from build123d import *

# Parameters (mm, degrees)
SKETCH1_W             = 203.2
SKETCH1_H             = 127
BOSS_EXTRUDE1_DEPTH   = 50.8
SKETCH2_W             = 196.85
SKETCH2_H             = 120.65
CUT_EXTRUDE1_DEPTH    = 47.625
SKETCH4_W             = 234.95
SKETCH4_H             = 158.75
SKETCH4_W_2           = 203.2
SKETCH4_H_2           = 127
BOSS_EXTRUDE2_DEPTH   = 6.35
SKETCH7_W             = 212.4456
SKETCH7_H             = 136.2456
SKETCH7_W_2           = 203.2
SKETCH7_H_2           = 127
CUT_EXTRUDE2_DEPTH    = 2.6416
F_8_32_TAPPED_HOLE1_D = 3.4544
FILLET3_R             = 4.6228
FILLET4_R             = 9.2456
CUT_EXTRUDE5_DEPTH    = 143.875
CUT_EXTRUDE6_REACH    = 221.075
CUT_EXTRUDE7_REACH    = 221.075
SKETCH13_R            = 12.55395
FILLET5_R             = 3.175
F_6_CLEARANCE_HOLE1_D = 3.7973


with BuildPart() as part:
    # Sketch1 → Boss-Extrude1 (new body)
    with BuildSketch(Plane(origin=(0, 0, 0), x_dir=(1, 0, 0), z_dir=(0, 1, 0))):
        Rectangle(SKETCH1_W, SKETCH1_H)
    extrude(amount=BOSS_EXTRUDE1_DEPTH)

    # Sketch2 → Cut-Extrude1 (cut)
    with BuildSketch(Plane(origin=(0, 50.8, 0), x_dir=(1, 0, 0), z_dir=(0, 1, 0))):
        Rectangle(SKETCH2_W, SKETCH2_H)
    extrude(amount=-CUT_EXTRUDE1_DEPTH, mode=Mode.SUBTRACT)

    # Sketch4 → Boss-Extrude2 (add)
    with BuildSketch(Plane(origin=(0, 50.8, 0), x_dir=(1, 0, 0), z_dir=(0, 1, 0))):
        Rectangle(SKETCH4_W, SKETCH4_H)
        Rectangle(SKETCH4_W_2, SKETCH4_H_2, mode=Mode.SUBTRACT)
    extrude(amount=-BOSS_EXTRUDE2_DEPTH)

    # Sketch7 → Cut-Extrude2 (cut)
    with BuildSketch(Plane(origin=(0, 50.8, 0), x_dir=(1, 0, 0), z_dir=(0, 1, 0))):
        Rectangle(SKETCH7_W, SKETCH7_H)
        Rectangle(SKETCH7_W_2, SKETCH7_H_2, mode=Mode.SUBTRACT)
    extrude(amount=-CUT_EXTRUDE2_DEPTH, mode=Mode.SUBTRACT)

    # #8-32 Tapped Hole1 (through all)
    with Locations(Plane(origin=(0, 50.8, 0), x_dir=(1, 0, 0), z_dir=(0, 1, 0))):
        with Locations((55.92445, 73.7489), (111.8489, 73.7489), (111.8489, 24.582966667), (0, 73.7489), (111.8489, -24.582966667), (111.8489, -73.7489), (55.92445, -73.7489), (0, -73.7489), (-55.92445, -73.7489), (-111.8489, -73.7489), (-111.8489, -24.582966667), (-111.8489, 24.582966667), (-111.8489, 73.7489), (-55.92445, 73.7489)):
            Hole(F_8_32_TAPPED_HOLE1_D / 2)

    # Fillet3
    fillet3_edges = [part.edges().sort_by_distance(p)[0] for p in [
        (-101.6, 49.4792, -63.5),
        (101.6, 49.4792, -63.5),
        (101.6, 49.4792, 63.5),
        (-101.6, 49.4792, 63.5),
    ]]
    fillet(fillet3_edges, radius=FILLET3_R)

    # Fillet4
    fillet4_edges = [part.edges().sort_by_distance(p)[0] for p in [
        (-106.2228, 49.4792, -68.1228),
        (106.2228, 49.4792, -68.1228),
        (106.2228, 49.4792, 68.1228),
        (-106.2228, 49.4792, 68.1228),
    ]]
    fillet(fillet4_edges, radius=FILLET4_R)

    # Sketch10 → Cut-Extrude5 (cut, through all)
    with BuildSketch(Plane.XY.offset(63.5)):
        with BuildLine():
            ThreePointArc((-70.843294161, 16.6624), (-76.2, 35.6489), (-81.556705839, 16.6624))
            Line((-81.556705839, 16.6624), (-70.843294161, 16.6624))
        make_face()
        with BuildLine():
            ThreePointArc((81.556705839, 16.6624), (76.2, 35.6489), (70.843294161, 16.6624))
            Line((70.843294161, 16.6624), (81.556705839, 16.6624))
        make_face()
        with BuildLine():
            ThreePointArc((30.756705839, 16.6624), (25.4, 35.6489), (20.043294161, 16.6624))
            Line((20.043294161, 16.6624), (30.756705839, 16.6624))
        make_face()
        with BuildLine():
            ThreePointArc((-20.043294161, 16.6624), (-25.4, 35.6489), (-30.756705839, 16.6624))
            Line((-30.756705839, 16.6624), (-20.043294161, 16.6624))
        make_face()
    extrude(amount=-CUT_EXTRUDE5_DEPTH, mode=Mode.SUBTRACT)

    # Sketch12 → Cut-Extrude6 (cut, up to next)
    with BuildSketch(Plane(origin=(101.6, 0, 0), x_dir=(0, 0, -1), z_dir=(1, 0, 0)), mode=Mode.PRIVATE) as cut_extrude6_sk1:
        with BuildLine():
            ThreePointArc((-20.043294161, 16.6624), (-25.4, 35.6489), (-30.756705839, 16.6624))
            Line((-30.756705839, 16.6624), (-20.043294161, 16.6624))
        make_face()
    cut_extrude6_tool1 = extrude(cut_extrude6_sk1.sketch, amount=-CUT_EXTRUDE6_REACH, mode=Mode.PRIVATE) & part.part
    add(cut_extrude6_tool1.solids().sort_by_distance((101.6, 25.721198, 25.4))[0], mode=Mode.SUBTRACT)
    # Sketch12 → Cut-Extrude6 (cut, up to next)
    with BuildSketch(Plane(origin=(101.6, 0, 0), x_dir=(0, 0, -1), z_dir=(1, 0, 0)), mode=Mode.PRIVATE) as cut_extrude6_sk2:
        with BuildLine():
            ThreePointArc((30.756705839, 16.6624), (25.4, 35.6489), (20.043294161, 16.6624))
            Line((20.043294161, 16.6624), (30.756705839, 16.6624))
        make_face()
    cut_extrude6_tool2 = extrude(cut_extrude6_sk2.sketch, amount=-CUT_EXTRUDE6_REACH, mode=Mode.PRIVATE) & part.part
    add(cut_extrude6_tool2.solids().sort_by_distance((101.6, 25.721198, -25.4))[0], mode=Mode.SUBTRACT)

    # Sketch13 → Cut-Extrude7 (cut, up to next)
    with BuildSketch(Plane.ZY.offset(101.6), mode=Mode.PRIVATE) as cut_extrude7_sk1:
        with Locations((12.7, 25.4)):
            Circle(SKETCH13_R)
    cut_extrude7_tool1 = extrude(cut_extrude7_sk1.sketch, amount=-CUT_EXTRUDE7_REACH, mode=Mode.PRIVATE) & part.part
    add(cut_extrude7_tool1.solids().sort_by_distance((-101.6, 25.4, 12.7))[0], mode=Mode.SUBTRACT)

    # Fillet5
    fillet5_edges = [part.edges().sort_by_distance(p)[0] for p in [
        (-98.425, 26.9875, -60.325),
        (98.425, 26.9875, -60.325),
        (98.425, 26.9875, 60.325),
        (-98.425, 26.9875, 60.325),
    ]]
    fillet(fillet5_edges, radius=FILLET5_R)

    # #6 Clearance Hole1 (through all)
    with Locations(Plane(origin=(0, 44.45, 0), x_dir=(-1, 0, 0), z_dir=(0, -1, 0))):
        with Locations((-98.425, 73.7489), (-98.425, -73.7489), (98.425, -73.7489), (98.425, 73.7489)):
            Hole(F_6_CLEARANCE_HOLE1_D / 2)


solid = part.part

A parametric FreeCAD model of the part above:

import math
import FreeCAD as App
import Part
import Sketcher
Q = App.Units.Quantity


def edges_at(feature, points):
    """Names of the edges that pass closest to the given points."""
    edges = feature.Shape.Edges
    near = lambda p: min(range(len(edges)), key=lambda i: edges[i].distToShape(Part.Vertex(*p))[0])
    return sorted({f"Edge{near(p) + 1}" for p in points})

doc = App.newDocument("Part")
body = doc.addObject("PartDesign::Body", "Body")

sketch1 = body.newObject("Sketcher::SketchObject", "Sketch")
sketch1.AttachmentSupport = (doc.getObject("XZ_Plane"), [""])
sketch1.MapMode = "FlatFace"
sketch1.addGeometry(Part.LineSegment(App.Vector(-102, -64, 0), App.Vector(-102, 64, 0)), False)
sketch1.addGeometry(Part.LineSegment(App.Vector(-102, 64, 0), App.Vector(102, 64, 0)), False)
sketch1.addGeometry(Part.LineSegment(App.Vector(102, 64, 0), App.Vector(102, -64, 0)), False)
sketch1.addGeometry(Part.LineSegment(App.Vector(102, -64, 0), App.Vector(-102, -64, 0)), False)
sketch1.addConstraint(Sketcher.Constraint("Coincident", 0, 2, 1, 1))
sketch1.addConstraint(Sketcher.Constraint("Coincident", 1, 2, 2, 1))
sketch1.addConstraint(Sketcher.Constraint("Coincident", 2, 2, 3, 1))
sketch1.addConstraint(Sketcher.Constraint("Coincident", 3, 2, 0, 1))
sketch1.addConstraint(Sketcher.Constraint("Vertical", 0))
sketch1.addConstraint(Sketcher.Constraint("Horizontal", 1))
sketch1.addConstraint(Sketcher.Constraint("Vertical", 2))
sketch1.addConstraint(Sketcher.Constraint("Horizontal", 3))
sketch1.addConstraint(Sketcher.Constraint("Symmetric", 0, 2, 2, 2, -1, 1))
sketch1.addConstraint(Sketcher.Constraint("DistanceX", 1, 1, 1, 2, Q("8 in")))
sketch1.addConstraint(Sketcher.Constraint("DistanceY", 0, 1, 0, 2, Q("5 in")))
pad1 = body.newObject("PartDesign::Pad", "Pad")
pad1.Profile = sketch1
pad1.Length = Q("2 in")
pad1.Reversed = True

sketch2 = body.newObject("Sketcher::SketchObject", "Sketch001")
sketch2.AttachmentSupport = (doc.getObject("XZ_Plane"), [""])
sketch2.MapMode = "FlatFace"
sketch2.AttachmentOffset = App.Placement(App.Vector(0, 0, -2 * 25.4), App.Rotation())
sketch2.addGeometry(Part.LineSegment(App.Vector(-98, -60, 0), App.Vector(-98, 60, 0)), False)
sketch2.addGeometry(Part.LineSegment(App.Vector(-98, 60, 0), App.Vector(98, 60, 0)), False)
sketch2.addGeometry(Part.LineSegment(App.Vector(98, 60, 0), App.Vector(98, -60, 0)), False)
sketch2.addGeometry(Part.LineSegment(App.Vector(98, -60, 0), App.Vector(-98, -60, 0)), False)
sketch2.addConstraint(Sketcher.Constraint("Coincident", 0, 2, 1, 1))
sketch2.addConstraint(Sketcher.Constraint("Coincident", 1, 2, 2, 1))
sketch2.addConstraint(Sketcher.Constraint("Coincident", 2, 2, 3, 1))
sketch2.addConstraint(Sketcher.Constraint("Coincident", 3, 2, 0, 1))
sketch2.addConstraint(Sketcher.Constraint("Vertical", 0))
sketch2.addConstraint(Sketcher.Constraint("Horizontal", 1))
sketch2.addConstraint(Sketcher.Constraint("Vertical", 2))
sketch2.addConstraint(Sketcher.Constraint("Horizontal", 3))
sketch2.addConstraint(Sketcher.Constraint("Symmetric", 0, 2, 2, 2, -1, 1))
sketch2.addConstraint(Sketcher.Constraint("DistanceX", 1, 1, 1, 2, Q("7.75 in")))
sketch2.addConstraint(Sketcher.Constraint("DistanceY", 0, 1, 0, 2, Q("4.75 in")))
pocket1 = body.newObject("PartDesign::Pocket", "Pocket")
pocket1.Profile = sketch2
pocket1.Length = Q("1.875 in")
pocket1.Reversed = True

sketch3 = body.newObject("Sketcher::SketchObject", "Sketch002")
sketch3.AttachmentSupport = (doc.getObject("XZ_Plane"), [""])
sketch3.MapMode = "FlatFace"
sketch3.AttachmentOffset = App.Placement(App.Vector(0, 0, -2 * 25.4), App.Rotation())
sketch3.addGeometry(Part.LineSegment(App.Vector(-117, -79, 0), App.Vector(-117, 79, 0)), False)
sketch3.addGeometry(Part.LineSegment(App.Vector(-117, 79, 0), App.Vector(117, 79, 0)), False)
sketch3.addGeometry(Part.LineSegment(App.Vector(117, 79, 0), App.Vector(117, -79, 0)), False)
sketch3.addGeometry(Part.LineSegment(App.Vector(117, -79, 0), App.Vector(-117, -79, 0)), False)
sketch3.addGeometry(Part.LineSegment(App.Vector(102, 64, 0), App.Vector(-102, 64, 0)), False)
sketch3.addGeometry(Part.LineSegment(App.Vector(-102, 64, 0), App.Vector(-102, -64, 0)), False)
sketch3.addGeometry(Part.LineSegment(App.Vector(-102, -64, 0), App.Vector(102, -64, 0)), False)
sketch3.addGeometry(Part.LineSegment(App.Vector(102, -64, 0), App.Vector(102, 64, 0)), False)
sketch3.addConstraint(Sketcher.Constraint("Coincident", 0, 2, 1, 1))
sketch3.addConstraint(Sketcher.Constraint("Coincident", 1, 2, 2, 1))
sketch3.addConstraint(Sketcher.Constraint("Coincident", 2, 2, 3, 1))
sketch3.addConstraint(Sketcher.Constraint("Coincident", 3, 2, 0, 1))
sketch3.addConstraint(Sketcher.Constraint("Coincident", 4, 2, 5, 1))
sketch3.addConstraint(Sketcher.Constraint("Coincident", 5, 2, 6, 1))
sketch3.addConstraint(Sketcher.Constraint("Coincident", 6, 2, 7, 1))
sketch3.addConstraint(Sketcher.Constraint("Coincident", 7, 2, 4, 1))
sketch3.addConstraint(Sketcher.Constraint("Vertical", 0))
sketch3.addConstraint(Sketcher.Constraint("Horizontal", 1))
sketch3.addConstraint(Sketcher.Constraint("Vertical", 2))
sketch3.addConstraint(Sketcher.Constraint("Horizontal", 3))
sketch3.addConstraint(Sketcher.Constraint("Horizontal", 4))
sketch3.addConstraint(Sketcher.Constraint("Vertical", 5))
sketch3.addConstraint(Sketcher.Constraint("Horizontal", 6))
sketch3.addConstraint(Sketcher.Constraint("Vertical", 7))
sketch3.addConstraint(Sketcher.Constraint("Symmetric", 0, 2, 2, 2, -1, 1))
sketch3.addConstraint(Sketcher.Constraint("Symmetric", 4, 2, 6, 2, -1, 1))
sketch3.addConstraint(Sketcher.Constraint("DistanceX", 4, 2, 4, 1, Q("8 in")))
sketch3.addConstraint(Sketcher.Constraint("DistanceY", 5, 2, 5, 1, Q("5 in")))
sketch3.addConstraint(Sketcher.Constraint("DistanceX", 1, 1, 1, 2, Q("9.25 in")))
sketch3.addConstraint(Sketcher.Constraint("DistanceY", 0, 1, 0, 2, Q("6.25 in")))
pad2 = body.newObject("PartDesign::Pad", "Pad001")
pad2.Profile = sketch3
pad2.Length = Q("0.25 in")

sketch4 = body.newObject("Sketcher::SketchObject", "Sketch003")
sketch4.AttachmentSupport = (doc.getObject("XZ_Plane"), [""])
sketch4.MapMode = "FlatFace"
sketch4.AttachmentOffset = App.Placement(App.Vector(0, 0, -2 * 25.4), App.Rotation())
sketch4.addGeometry(Part.LineSegment(App.Vector(-106, -68, 0), App.Vector(-106, 68, 0)), False)
sketch4.addGeometry(Part.LineSegment(App.Vector(-106, 68, 0), App.Vector(106, 68, 0)), False)
sketch4.addGeometry(Part.LineSegment(App.Vector(106, 68, 0), App.Vector(106, -68, 0)), False)
sketch4.addGeometry(Part.LineSegment(App.Vector(106, -68, 0), App.Vector(-106, -68, 0)), False)
sketch4.addGeometry(Part.LineSegment(App.Vector(102, 64, 0), App.Vector(-102, 64, 0)), False)
sketch4.addGeometry(Part.LineSegment(App.Vector(-102, 64, 0), App.Vector(-102, -64, 0)), False)
sketch4.addGeometry(Part.LineSegment(App.Vector(-102, -64, 0), App.Vector(102, -64, 0)), False)
sketch4.addGeometry(Part.LineSegment(App.Vector(102, -64, 0), App.Vector(102, 64, 0)), False)
sketch4.addConstraint(Sketcher.Constraint("Coincident", 0, 2, 1, 1))
sketch4.addConstraint(Sketcher.Constraint("Coincident", 1, 2, 2, 1))
sketch4.addConstraint(Sketcher.Constraint("Coincident", 2, 2, 3, 1))
sketch4.addConstraint(Sketcher.Constraint("Coincident", 3, 2, 0, 1))
sketch4.addConstraint(Sketcher.Constraint("Coincident", 4, 2, 5, 1))
sketch4.addConstraint(Sketcher.Constraint("Coincident", 5, 2, 6, 1))
sketch4.addConstraint(Sketcher.Constraint("Coincident", 6, 2, 7, 1))
sketch4.addConstraint(Sketcher.Constraint("Coincident", 7, 2, 4, 1))
sketch4.addConstraint(Sketcher.Constraint("Vertical", 0))
sketch4.addConstraint(Sketcher.Constraint("Horizontal", 1))
sketch4.addConstraint(Sketcher.Constraint("Vertical", 2))
sketch4.addConstraint(Sketcher.Constraint("Horizontal", 3))
sketch4.addConstraint(Sketcher.Constraint("Horizontal", 4))
sketch4.addConstraint(Sketcher.Constraint("Vertical", 5))
sketch4.addConstraint(Sketcher.Constraint("Horizontal", 6))
sketch4.addConstraint(Sketcher.Constraint("Vertical", 7))
sketch4.addConstraint(Sketcher.Constraint("Symmetric", 0, 2, 2, 2, -1, 1))
sketch4.addConstraint(Sketcher.Constraint("Symmetric", 4, 2, 6, 2, -1, 1))
sketch4.addConstraint(Sketcher.Constraint("DistanceX", 4, 2, 4, 1, Q("8 in")))
sketch4.addConstraint(Sketcher.Constraint("DistanceY", 5, 2, 5, 1, Q("5 in")))
sketch4.addConstraint(Sketcher.Constraint("DistanceX", 1, 1, 1, 2, Q("8.364 in")))
sketch4.addConstraint(Sketcher.Constraint("DistanceY", 0, 1, 0, 2, Q("5.364 in")))
pocket2 = body.newObject("PartDesign::Pocket", "Pocket001")
pocket2.Profile = sketch4
pocket2.Length = Q("0.104 in")
pocket2.Reversed = True

sketch5 = body.newObject("Sketcher::SketchObject", "Sketch004")
sketch5.AttachmentSupport = (doc.getObject("XZ_Plane"), [""])
sketch5.MapMode = "FlatFace"
sketch5.AttachmentOffset = App.Placement(App.Vector(0, 0, -2 * 25.4), App.Rotation())
sketch5.addGeometry(Part.Circle(App.Vector(55.9, -73.7, 0), App.Vector(0, 0, 1), 1.7), False)
sketch5.addGeometry(Part.Circle(App.Vector(111.8, -73.7, 0), App.Vector(0, 0, 1), 1.7), False)
sketch5.addGeometry(Part.Circle(App.Vector(111.8, -24.6, 0), App.Vector(0, 0, 1), 1.7), False)
sketch5.addGeometry(Part.Circle(App.Vector(0, -73.7, 0), App.Vector(0, 0, 1), 1.7), False)
sketch5.addGeometry(Part.Circle(App.Vector(111.8, 24.6, 0), App.Vector(0, 0, 1), 1.7), False)
sketch5.addGeometry(Part.Circle(App.Vector(111.8, 73.7, 0), App.Vector(0, 0, 1), 1.7), False)
sketch5.addGeometry(Part.Circle(App.Vector(55.9, 73.7, 0), App.Vector(0, 0, 1), 1.7), False)
sketch5.addGeometry(Part.Circle(App.Vector(0, 73.7, 0), App.Vector(0, 0, 1), 1.7), False)
sketch5.addGeometry(Part.Circle(App.Vector(-55.9, 73.7, 0), App.Vector(0, 0, 1), 1.7), False)
sketch5.addGeometry(Part.Circle(App.Vector(-111.8, 73.7, 0), App.Vector(0, 0, 1), 1.7), False)
sketch5.addGeometry(Part.Circle(App.Vector(-111.8, 24.6, 0), App.Vector(0, 0, 1), 1.7), False)
sketch5.addGeometry(Part.Circle(App.Vector(-111.8, -24.6, 0), App.Vector(0, 0, 1), 1.7), False)
sketch5.addGeometry(Part.Circle(App.Vector(-111.8, -73.7, 0), App.Vector(0, 0, 1), 1.7), False)
sketch5.addGeometry(Part.Circle(App.Vector(-55.9, -73.7, 0), App.Vector(0, 0, 1), 1.7), False)
sketch5.addConstraint(Sketcher.Constraint("Equal", 0, 1))
sketch5.addConstraint(Sketcher.Constraint("Equal", 1, 2))
sketch5.addConstraint(Sketcher.Constraint("Equal", 2, 3))
sketch5.addConstraint(Sketcher.Constraint("Equal", 3, 4))
sketch5.addConstraint(Sketcher.Constraint("Equal", 4, 5))
sketch5.addConstraint(Sketcher.Constraint("Equal", 5, 6))
sketch5.addConstraint(Sketcher.Constraint("Equal", 6, 7))
sketch5.addConstraint(Sketcher.Constraint("Equal", 7, 8))
sketch5.addConstraint(Sketcher.Constraint("Equal", 8, 9))
sketch5.addConstraint(Sketcher.Constraint("Equal", 9, 10))
sketch5.addConstraint(Sketcher.Constraint("Equal", 10, 11))
sketch5.addConstraint(Sketcher.Constraint("Equal", 11, 12))
sketch5.addConstraint(Sketcher.Constraint("Equal", 12, 13))
sketch5.addConstraint(Sketcher.Constraint("Symmetric", 3, 3, 7, 3, -1, 1))
sketch5.addConstraint(Sketcher.Constraint("Symmetric", 0, 3, 8, 3, -1, 1))
sketch5.addConstraint(Sketcher.Constraint("Symmetric", 1, 3, 9, 3, -1, 1))
sketch5.addConstraint(Sketcher.Constraint("Symmetric", 2, 3, 10, 3, -1, 1))
sketch5.addConstraint(Sketcher.Constraint("Symmetric", 4, 3, 11, 3, -1, 1))
sketch5.addConstraint(Sketcher.Constraint("Symmetric", 5, 3, 12, 3, -1, 1))
sketch5.addConstraint(Sketcher.Constraint("Symmetric", 6, 3, 13, 3, -1, 1))
sketch5.addConstraint(Sketcher.Constraint("Symmetric", 6, 3, 8, 3, -2))
sketch5.addConstraint(Sketcher.Constraint("Symmetric", 5, 3, 9, 3, -2))
sketch5.addConstraint(Sketcher.Constraint("Symmetric", 4, 3, 10, 3, -2))
sketch5.addConstraint(Sketcher.Constraint("PointOnObject", 3, 3, -2))
sketch5.addConstraint(Sketcher.Constraint("Horizontal", 0, 3, 1, 3))
sketch5.addConstraint(Sketcher.Constraint("Horizontal", 1, 3, 3, 3))
sketch5.addConstraint(Sketcher.Constraint("Vertical", 1, 3, 2, 3))
sketch5.addConstraint(Sketcher.Constraint("Diameter", 0, Q("0.136 in")))
sketch5.addConstraint(Sketcher.Constraint("DistanceY", 1, 3, 5, 3, Q("5.807 in")))
sketch5.addConstraint(Sketcher.Constraint("DistanceX", -1, 1, 1, 3, Q("4.4035 in")))
sketch5.addConstraint(Sketcher.Constraint("DistanceX", 8, 3, 6, 3, Q("4.4035 in")))
sketch5.addConstraint(Sketcher.Constraint("DistanceY", 2, 3, -1, 1, 24.582967))
doc.recompute()
hole = body.newObject("PartDesign::Hole", "Hole")
hole.Profile = sketch5
hole.ThreadType = "None"
hole.Diameter = Q("0.136 in")
hole.DepthType = "ThroughAll"
hole.Reversed = True
doc.recompute()

fillet = body.newObject("PartDesign::Fillet", "Fillet")
fillet.Base = (hole, edges_at(hole, [
    (-101.6, 49.479, -63.5),
    (101.6, 49.479, -63.5),
    (101.6, 49.479, 63.5),
    (-101.6, 49.479, 63.5),
]))
fillet.Radius = Q("0.182 in")
doc.recompute()

fillet2 = body.newObject("PartDesign::Fillet", "Fillet001")
fillet2.Base = (fillet, edges_at(fillet, [
    (-106.223, 49.479, -68.123),
    (106.223, 49.479, -68.123),
    (106.223, 49.479, 68.123),
    (-106.223, 49.479, 68.123),
]))
fillet2.Radius = Q("0.364 in")

sketch6 = body.newObject("Sketcher::SketchObject", "Sketch005")
sketch6.AttachmentSupport = (doc.getObject("XY_Plane"), [""])
sketch6.MapMode = "FlatFace"
sketch6.AttachmentOffset = App.Placement(App.Vector(0, 0, 2.5 * 25.4), App.Rotation())
sketch6.addGeometry(Part.ArcOfCircle(Part.Circle(App.Vector(-76, 25, 0), App.Vector(0, 0, 1), 10), math.radians(-58), math.radians(238)), False)
sketch6.addGeometry(Part.LineSegment(App.Vector(-82, 17, 0), App.Vector(-71, 17, 0)), False)
sketch6.addGeometry(Part.ArcOfCircle(Part.Circle(App.Vector(76, 25, 0), App.Vector(0, 0, 1), 10), math.radians(-58), math.radians(238)), False)
sketch6.addGeometry(Part.LineSegment(App.Vector(71, 17, 0), App.Vector(82, 17, 0)), False)
sketch6.addGeometry(Part.ArcOfCircle(Part.Circle(App.Vector(25, 25, 0), App.Vector(0, 0, 1), 10), math.radians(-58), math.radians(238)), False)
sketch6.addGeometry(Part.LineSegment(App.Vector(20, 17, 0), App.Vector(31, 17, 0)), False)
sketch6.addGeometry(Part.ArcOfCircle(Part.Circle(App.Vector(-25, 25, 0), App.Vector(0, 0, 1), 10), math.radians(-58), math.radians(238)), False)
sketch6.addGeometry(Part.LineSegment(App.Vector(-31, 17, 0), App.Vector(-20, 17, 0)), False)
sketch6.addConstraint(Sketcher.Constraint("Coincident", 0, 1, 1, 2))
sketch6.addConstraint(Sketcher.Constraint("Coincident", 1, 1, 0, 2))
sketch6.addConstraint(Sketcher.Constraint("Coincident", 2, 1, 3, 2))
sketch6.addConstraint(Sketcher.Constraint("Coincident", 3, 1, 2, 2))
sketch6.addConstraint(Sketcher.Constraint("Coincident", 4, 1, 5, 2))
sketch6.addConstraint(Sketcher.Constraint("Coincident", 5, 1, 4, 2))
sketch6.addConstraint(Sketcher.Constraint("Coincident", 6, 1, 7, 2))
sketch6.addConstraint(Sketcher.Constraint("Coincident", 7, 1, 6, 2))
sketch6.addConstraint(Sketcher.Constraint("Horizontal", 1))
sketch6.addConstraint(Sketcher.Constraint("Horizontal", 3))
sketch6.addConstraint(Sketcher.Constraint("Horizontal", 5))
sketch6.addConstraint(Sketcher.Constraint("Horizontal", 7))
sketch6.addConstraint(Sketcher.Constraint("Equal", 0, 2))
sketch6.addConstraint(Sketcher.Constraint("Equal", 2, 4))
sketch6.addConstraint(Sketcher.Constraint("Equal", 4, 6))
sketch6.addConstraint(Sketcher.Constraint("Symmetric", 0, 3, 2, 3, -2))
sketch6.addConstraint(Sketcher.Constraint("Symmetric", 4, 3, 6, 3, -2))
sketch6.addConstraint(Sketcher.Constraint("Horizontal", 2, 3, 4, 3))
sketch6.addConstraint(Sketcher.Constraint("Horizontal", 1, 1, 2, 1))
sketch6.addConstraint(Sketcher.Constraint("Horizontal", 3, 1, 4, 1))
sketch6.addConstraint(Sketcher.Constraint("Horizontal", 5, 1, 6, 1))
sketch6.addConstraint(Sketcher.Constraint("DistanceX", 0, 3, -1, 1, Q("3 in")))
sketch6.addConstraint(Sketcher.Constraint("DistanceY", -1, 1, 0, 3, Q("1 in")))
sketch6.addConstraint(Sketcher.Constraint("DistanceX", -1, 1, 4, 3, Q("1 in")))
sketch6.addConstraint(Sketcher.Constraint("Radius", 0, Q("0.4035 in")))
sketch6.addConstraint(Sketcher.Constraint("DistanceY", -1, 1, 0, 1, Q("0.656 in")))
pocket3 = body.newObject("PartDesign::Pocket", "Pocket002")
pocket3.Profile = sketch6
pocket3.Type = "ThroughAll"

sketch7 = body.newObject("Sketcher::SketchObject", "Sketch006")
sketch7.AttachmentSupport = (doc.getObject("YZ_Plane"), [""])
sketch7.MapMode = "FlatFace"
sketch7.AttachmentOffset = App.Placement(App.Vector(0, 0, 4 * 25.4), App.Rotation())
sketch7.addGeometry(Part.ArcOfCircle(Part.Circle(App.Vector(25, 25, 0), App.Vector(0, 0, 1), 10), math.radians(-148), math.radians(148)), False)
sketch7.addGeometry(Part.LineSegment(App.Vector(17, 31, 0), App.Vector(17, 20, 0)), False)
sketch7.addConstraint(Sketcher.Constraint("Coincident", 0, 1, 1, 2))
sketch7.addConstraint(Sketcher.Constraint("Coincident", 1, 1, 0, 2))
sketch7.addConstraint(Sketcher.Constraint("Vertical", 1))
sketch7.addConstraint(Sketcher.Constraint("DistanceX", -1, 1, 0, 3, Q("1 in")))
sketch7.addConstraint(Sketcher.Constraint("DistanceY", -1, 1, 0, 3, Q("1 in")))
sketch7.addConstraint(Sketcher.Constraint("Radius", 0, Q("0.4035 in")))
sketch7.addConstraint(Sketcher.Constraint("DistanceX", -1, 1, 0, 1, Q("0.656 in")))
pocket4 = body.newObject("PartDesign::Pocket", "Pocket003")
pocket4.Profile = sketch7
pocket4.Type = "UpToFirst"

sketch8 = body.newObject("Sketcher::SketchObject", "Sketch007")
sketch8.AttachmentSupport = (doc.getObject("YZ_Plane"), [""])
sketch8.MapMode = "FlatFace"
sketch8.AttachmentOffset = App.Placement(App.Vector(0, 0, 4 * 25.4), App.Rotation())
sketch8.addGeometry(Part.ArcOfCircle(Part.Circle(App.Vector(25, -25, 0), App.Vector(0, 0, 1), 10), math.radians(-148), math.radians(148)), False)
sketch8.addGeometry(Part.LineSegment(App.Vector(17, -20, 0), App.Vector(17, -31, 0)), False)
sketch8.addConstraint(Sketcher.Constraint("Coincident", 0, 1, 1, 2))
sketch8.addConstraint(Sketcher.Constraint("Coincident", 1, 1, 0, 2))
sketch8.addConstraint(Sketcher.Constraint("Vertical", 1))
sketch8.addConstraint(Sketcher.Constraint("DistanceX", -1, 1, 0, 3, Q("1 in")))
sketch8.addConstraint(Sketcher.Constraint("DistanceY", 0, 3, -1, 1, Q("1 in")))
sketch8.addConstraint(Sketcher.Constraint("Radius", 0, Q("0.4035 in")))
sketch8.addConstraint(Sketcher.Constraint("DistanceX", -1, 1, 0, 1, Q("0.656 in")))
pocket5 = body.newObject("PartDesign::Pocket", "Pocket004")
pocket5.Profile = sketch8
pocket5.Type = "UpToFirst"

sketch9 = body.newObject("Sketcher::SketchObject", "Sketch008")
sketch9.AttachmentSupport = (doc.getObject("YZ_Plane"), [""])
sketch9.MapMode = "FlatFace"
sketch9.AttachmentOffset = App.Placement(App.Vector(0, 0, -4 * 25.4), App.Rotation())
sketch9.addGeometry(Part.Circle(App.Vector(25, 13, 0), App.Vector(0, 0, 1), 13), False)
sketch9.addConstraint(Sketcher.Constraint("DistanceX", -1, 1, 0, 3, Q("1 in")))
sketch9.addConstraint(Sketcher.Constraint("Diameter", 0, Q("0.9885 in")))
sketch9.addConstraint(Sketcher.Constraint("DistanceY", -1, 1, 0, 3, Q("0.5 in")))
pocket6 = body.newObject("PartDesign::Pocket", "Pocket005")
pocket6.Profile = sketch9
pocket6.Type = "UpToFirst"
pocket6.Reversed = True
doc.recompute()

fillet3 = body.newObject("PartDesign::Fillet", "Fillet002")
fillet3.Base = (pocket6, edges_at(pocket6, [
    (-98.425, 26.988, -60.325),
    (98.425, 26.988, -60.325),
    (98.425, 26.988, 60.325),
    (-98.425, 26.988, 60.325),
]))
fillet3.Radius = Q("0.125 in")

sketch10 = body.newObject("Sketcher::SketchObject", "Sketch009")
sketch10.AttachmentSupport = (doc.getObject("XZ_Plane"), [""])
sketch10.MapMode = "FlatFace"
sketch10.AttachmentOffset = App.Placement(App.Vector(0, 0, -1.75 * 25.4), App.Rotation())
sketch10.addGeometry(Part.Circle(App.Vector(98.4, -73.7, 0), App.Vector(0, 0, 1), 1.9), False)
sketch10.addGeometry(Part.Circle(App.Vector(98.4, 73.7, 0), App.Vector(0, 0, 1), 1.9), False)
sketch10.addGeometry(Part.Circle(App.Vector(-98.4, 73.7, 0), App.Vector(0, 0, 1), 1.9), False)
sketch10.addGeometry(Part.Circle(App.Vector(-98.4, -73.7, 0), App.Vector(0, 0, 1), 1.9), False)
sketch10.addConstraint(Sketcher.Constraint("Equal", 0, 1))
sketch10.addConstraint(Sketcher.Constraint("Equal", 1, 2))
sketch10.addConstraint(Sketcher.Constraint("Equal", 2, 3))
sketch10.addConstraint(Sketcher.Constraint("Symmetric", 0, 3, 2, 3, -1, 1))
sketch10.addConstraint(Sketcher.Constraint("Symmetric", 1, 3, 3, 3, -1, 1))
sketch10.addConstraint(Sketcher.Constraint("Symmetric", 1, 3, 2, 3, -2))
sketch10.addConstraint(Sketcher.Constraint("Diameter", 0, Q("0.1495 in")))
sketch10.addConstraint(Sketcher.Constraint("DistanceX", 2, 3, 1, 3, Q("7.75 in")))
sketch10.addConstraint(Sketcher.Constraint("DistanceY", 0, 3, 1, 3, Q("5.807 in")))
doc.recompute()
hole2 = body.newObject("PartDesign::Hole", "Hole001")
hole2.Profile = sketch10
hole2.ThreadType = "None"
hole2.Diameter = Q("0.1495 in")
hole2.DepthType = "ThroughAll"

doc.recompute()
